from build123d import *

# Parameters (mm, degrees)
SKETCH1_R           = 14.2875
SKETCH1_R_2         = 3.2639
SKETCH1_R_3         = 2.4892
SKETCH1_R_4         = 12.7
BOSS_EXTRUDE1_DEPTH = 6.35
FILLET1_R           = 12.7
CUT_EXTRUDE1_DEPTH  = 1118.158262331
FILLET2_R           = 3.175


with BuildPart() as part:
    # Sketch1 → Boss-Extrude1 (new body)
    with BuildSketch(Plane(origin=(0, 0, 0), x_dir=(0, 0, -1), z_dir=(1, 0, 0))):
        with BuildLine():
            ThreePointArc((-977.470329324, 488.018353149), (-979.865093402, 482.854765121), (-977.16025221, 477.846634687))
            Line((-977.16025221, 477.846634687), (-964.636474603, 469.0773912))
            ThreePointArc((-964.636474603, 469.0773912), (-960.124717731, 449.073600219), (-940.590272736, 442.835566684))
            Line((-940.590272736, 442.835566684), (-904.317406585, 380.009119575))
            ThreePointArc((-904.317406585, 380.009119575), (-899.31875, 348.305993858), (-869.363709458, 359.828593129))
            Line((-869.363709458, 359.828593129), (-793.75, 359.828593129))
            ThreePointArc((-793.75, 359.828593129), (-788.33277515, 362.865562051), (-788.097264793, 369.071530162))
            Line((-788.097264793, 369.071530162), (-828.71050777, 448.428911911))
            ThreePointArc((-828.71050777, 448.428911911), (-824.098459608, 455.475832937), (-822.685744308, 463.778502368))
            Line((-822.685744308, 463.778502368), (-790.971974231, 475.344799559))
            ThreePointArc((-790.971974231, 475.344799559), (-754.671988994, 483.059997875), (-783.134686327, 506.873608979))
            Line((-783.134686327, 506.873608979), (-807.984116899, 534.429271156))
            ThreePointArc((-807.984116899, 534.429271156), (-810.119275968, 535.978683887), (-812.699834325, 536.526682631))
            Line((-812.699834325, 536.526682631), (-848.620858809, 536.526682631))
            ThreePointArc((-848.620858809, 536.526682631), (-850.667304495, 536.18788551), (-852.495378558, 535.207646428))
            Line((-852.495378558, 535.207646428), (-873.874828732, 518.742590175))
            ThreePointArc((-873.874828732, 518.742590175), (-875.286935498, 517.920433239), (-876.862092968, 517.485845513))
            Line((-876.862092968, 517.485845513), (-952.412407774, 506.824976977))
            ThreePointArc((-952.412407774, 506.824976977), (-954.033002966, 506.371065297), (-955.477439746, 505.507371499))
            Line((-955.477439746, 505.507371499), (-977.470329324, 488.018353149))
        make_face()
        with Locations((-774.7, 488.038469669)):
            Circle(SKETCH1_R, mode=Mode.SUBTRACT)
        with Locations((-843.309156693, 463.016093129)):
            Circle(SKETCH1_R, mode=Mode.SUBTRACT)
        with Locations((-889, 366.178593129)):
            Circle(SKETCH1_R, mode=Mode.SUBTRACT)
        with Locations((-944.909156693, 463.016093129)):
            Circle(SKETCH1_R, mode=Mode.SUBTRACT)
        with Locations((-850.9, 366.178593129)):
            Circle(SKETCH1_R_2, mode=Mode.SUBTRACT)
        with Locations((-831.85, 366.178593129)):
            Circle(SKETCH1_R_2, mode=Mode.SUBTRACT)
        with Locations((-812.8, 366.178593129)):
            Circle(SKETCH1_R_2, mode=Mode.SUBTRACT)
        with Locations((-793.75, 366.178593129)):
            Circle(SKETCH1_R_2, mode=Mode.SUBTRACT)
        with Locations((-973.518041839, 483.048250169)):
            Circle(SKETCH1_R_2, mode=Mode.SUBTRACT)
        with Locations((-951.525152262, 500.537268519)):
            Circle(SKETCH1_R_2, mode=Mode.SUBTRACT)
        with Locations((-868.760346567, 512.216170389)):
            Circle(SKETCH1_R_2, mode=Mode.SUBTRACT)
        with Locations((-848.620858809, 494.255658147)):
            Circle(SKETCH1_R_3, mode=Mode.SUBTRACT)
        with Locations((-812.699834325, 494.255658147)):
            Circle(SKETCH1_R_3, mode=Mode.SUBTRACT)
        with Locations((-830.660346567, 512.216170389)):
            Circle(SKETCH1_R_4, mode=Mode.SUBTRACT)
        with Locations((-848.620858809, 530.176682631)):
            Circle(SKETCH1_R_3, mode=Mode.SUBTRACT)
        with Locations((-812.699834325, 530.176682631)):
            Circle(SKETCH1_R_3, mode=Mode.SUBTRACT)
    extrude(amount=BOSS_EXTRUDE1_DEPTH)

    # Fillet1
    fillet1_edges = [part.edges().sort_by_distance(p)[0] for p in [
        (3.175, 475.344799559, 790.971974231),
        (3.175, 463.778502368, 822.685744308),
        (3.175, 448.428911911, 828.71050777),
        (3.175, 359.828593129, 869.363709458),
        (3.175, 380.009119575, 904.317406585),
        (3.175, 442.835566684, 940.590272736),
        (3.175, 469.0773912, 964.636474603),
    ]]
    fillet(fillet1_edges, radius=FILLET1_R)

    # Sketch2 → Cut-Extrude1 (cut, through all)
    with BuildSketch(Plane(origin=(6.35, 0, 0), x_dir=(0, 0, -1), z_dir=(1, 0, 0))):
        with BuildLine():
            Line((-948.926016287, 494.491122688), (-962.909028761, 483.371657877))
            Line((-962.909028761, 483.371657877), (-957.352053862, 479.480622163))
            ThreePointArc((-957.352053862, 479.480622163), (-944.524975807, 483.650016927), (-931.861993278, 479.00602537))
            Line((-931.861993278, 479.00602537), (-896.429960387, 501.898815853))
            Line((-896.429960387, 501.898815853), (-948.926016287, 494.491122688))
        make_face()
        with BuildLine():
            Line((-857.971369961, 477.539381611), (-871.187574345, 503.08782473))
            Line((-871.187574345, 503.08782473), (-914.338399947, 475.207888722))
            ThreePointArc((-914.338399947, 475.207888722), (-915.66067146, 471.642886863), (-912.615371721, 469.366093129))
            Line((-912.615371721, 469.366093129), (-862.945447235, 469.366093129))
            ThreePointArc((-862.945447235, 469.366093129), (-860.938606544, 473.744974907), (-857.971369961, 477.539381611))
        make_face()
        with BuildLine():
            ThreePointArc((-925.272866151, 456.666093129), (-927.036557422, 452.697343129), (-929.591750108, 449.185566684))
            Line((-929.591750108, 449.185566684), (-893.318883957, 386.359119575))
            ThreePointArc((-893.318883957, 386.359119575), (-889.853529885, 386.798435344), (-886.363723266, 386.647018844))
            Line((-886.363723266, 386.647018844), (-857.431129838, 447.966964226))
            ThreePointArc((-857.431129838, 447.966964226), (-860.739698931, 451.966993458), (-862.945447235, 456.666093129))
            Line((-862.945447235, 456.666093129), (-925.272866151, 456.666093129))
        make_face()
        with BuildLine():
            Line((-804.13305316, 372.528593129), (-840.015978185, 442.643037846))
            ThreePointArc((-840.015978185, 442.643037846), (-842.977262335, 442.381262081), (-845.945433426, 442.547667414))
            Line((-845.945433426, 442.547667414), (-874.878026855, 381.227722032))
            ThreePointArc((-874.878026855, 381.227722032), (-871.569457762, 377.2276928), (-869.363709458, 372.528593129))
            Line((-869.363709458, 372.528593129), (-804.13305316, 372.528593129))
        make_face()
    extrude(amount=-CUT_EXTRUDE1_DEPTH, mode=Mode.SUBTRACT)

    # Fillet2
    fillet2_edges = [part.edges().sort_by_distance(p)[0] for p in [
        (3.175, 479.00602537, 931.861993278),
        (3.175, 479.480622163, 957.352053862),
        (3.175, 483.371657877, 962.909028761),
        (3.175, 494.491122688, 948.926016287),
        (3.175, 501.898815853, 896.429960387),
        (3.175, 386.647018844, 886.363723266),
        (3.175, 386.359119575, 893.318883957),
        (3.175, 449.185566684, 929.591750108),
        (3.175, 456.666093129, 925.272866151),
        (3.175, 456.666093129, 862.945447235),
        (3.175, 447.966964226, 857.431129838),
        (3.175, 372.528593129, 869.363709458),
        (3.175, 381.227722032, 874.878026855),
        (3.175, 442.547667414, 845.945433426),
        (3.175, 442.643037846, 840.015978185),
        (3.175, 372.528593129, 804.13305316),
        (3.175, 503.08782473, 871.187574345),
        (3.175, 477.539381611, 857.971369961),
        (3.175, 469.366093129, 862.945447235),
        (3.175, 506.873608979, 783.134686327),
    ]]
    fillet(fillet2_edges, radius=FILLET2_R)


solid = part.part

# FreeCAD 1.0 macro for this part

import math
import FreeCAD as App
import Part
import Sketcher
Q = App.Units.Quantity


def edges_at(feature, points):
    """Names of the edges that pass closest to the given points."""
    edges = feature.Shape.Edges
    near = lambda p: min(range(len(edges)), key=lambda i: edges[i].distToShape(Part.Vertex(*p))[0])
    return sorted({f"Edge{near(p) + 1}" for p in points})

doc = App.newDocument("Part")
body = doc.addObject("PartDesign::Body", "Body")

# Sketch on YZ plane
sketch1 = body.newObject("Sketcher::SketchObject", "Sketch")
sketch1.AttachmentSupport = (doc.getObject("YZ_Plane"), [""])
sketch1.MapMode = "FlatFace"
sketch1.addGeometry([
    Part.ArcOfCircle(Part.Circle(App.Vector(483.04825, 973.518042, 0), App.Vector(0, 0, 1), 6.35), math.radians(38.492155), math.radians(145)),  # 0
    Part.LineSegment(App.Vector(477.846635, 977.160252, 0), App.Vector(469.077391, 964.636475, 0)),  # 1
    Part.ArcOfCircle(Part.Circle(App.Vector(463.016093, 944.909157, 0), App.Vector(0, 0, 1), 20.6375), math.radians(72.920213), math.radians(192.079787)),  # 2
    Part.LineSegment(App.Vector(442.835567, 940.590273, 0), App.Vector(380.00912, 904.317407, 0)),  # 3
    Part.ArcOfCircle(Part.Circle(App.Vector(366.178593, 889, 0), App.Vector(0, 0, 1), 20.6375), math.radians(47.920213), math.radians(252.079787)),  # 4
    Part.LineSegment(App.Vector(359.828593, 869.363709, 0), App.Vector(359.828593, 793.75, 0)),  # 5
    Part.ArcOfCircle(Part.Circle(App.Vector(366.178593, 793.75, 0), App.Vector(0, 0, 1), 6.35), math.radians(180), math.radians(297.1023)),  # 6
    Part.LineSegment(App.Vector(369.07153, 788.097265, 0), App.Vector(448.428912, 828.710508, 0)),  # 7
    Part.ArcOfCircle(Part.Circle(App.Vector(463.016093, 843.309157, 0), App.Vector(0, 0, 1), 20.6375), math.radians(-134.977487), math.radians(-87.882846)),  # 8
    Part.LineSegment(App.Vector(463.778502, 822.685744, 0), App.Vector(475.3448, 790.971974, 0)),  # 9
    Part.ArcOfCircle(Part.Circle(App.Vector(488.03847, 774.7, 0), App.Vector(0, 0, 1), 20.6375), math.radians(127.957581), math.radians(384.123623)),  # 10
    Part.LineSegment(App.Vector(506.873609, 783.134686, 0), App.Vector(534.429271, 807.984117, 0)),  # 11
    Part.ArcOfCircle(Part.Circle(App.Vector(530.176683, 812.699834, 0), App.Vector(0, 0, 1), 6.35), math.radians(-47.956164), math.radians(0)),  # 12
    Part.LineSegment(App.Vector(536.526683, 812.699834, 0), App.Vector(536.526683, 848.620859, 0)),  # 13
    Part.ArcOfCircle(Part.Circle(App.Vector(530.176683, 848.620859, 0), App.Vector(0, 0, 1), 6.35), math.radians(0), math.radians(37.601116)),  # 14
    Part.LineSegment(App.Vector(535.207646, 852.495379, 0), App.Vector(518.74259, 873.874829, 0)),  # 15
    Part.ArcOfCircle(Part.Circle(App.Vector(523.773554, 877.749348, 0), App.Vector(0, 0, 1), 6.35), math.radians(-171.96805), math.radians(-142.398884)),  # 16
    Part.LineSegment(App.Vector(517.485846, 876.862093, 0), App.Vector(506.824977, 952.412408, 0)),  # 17
    Part.ArcOfCircle(Part.Circle(App.Vector(500.537269, 951.525152, 0), App.Vector(0, 0, 1), 6.35), math.radians(8.03195), math.radians(38.492155)),  # 18
    Part.LineSegment(App.Vector(505.507371, 955.47744, 0), App.Vector(488.018353, 977.470329, 0)),  # 19
    Part.Circle(App.Vector(366.178593, 889, 0), App.Vector(0, 0, 1), 14.2875),  # 20
    Part.Circle(App.Vector(366.178593, 850.9, 0), App.Vector(0, 0, 1), 3.2639),  # 21
    Part.Circle(App.Vector(366.178593, 831.85, 0), App.Vector(0, 0, 1), 3.2639),  # 22
    Part.Circle(App.Vector(366.178593, 812.8, 0), App.Vector(0, 0, 1), 3.2639),  # 23
    Part.Circle(App.Vector(366.178593, 793.75, 0), App.Vector(0, 0, 1), 3.2639),  # 24
    Part.Circle(App.Vector(463.016093, 944.909157, 0), App.Vector(0, 0, 1), 14.2875),  # 25
    Part.Circle(App.Vector(483.04825, 973.518042, 0), App.Vector(0, 0, 1), 3.2639),  # 26
    Part.Circle(App.Vector(500.537269, 951.525152, 0), App.Vector(0, 0, 1), 3.2639),  # 27
    Part.Circle(App.Vector(512.21617, 868.760347, 0), App.Vector(0, 0, 1), 3.2639),  # 28
    Part.Circle(App.Vector(463.016093, 843.309157, 0), App.Vector(0, 0, 1), 14.2875),  # 29
    Part.Circle(App.Vector(494.255658, 848.620859, 0), App.Vector(0, 0, 1), 2.4892),  # 30
    Part.Circle(App.Vector(530.176683, 848.620859, 0), App.Vector(0, 0, 1), 2.4892),  # 31
    Part.Circle(App.Vector(512.21617, 830.660347, 0), App.Vector(0, 0, 1), 12.7),  # 32
    Part.Circle(App.Vector(494.255658, 812.699834, 0), App.Vector(0, 0, 1), 2.4892),  # 33
    Part.Circle(App.Vector(488.03847, 774.7, 0), App.Vector(0, 0, 1), 14.2875),  # 34
    Part.Circle(App.Vector(530.176683, 812.699834, 0), App.Vector(0, 0, 1), 2.4892),  # 35
], False)
sketch1.addConstraint([
    Sketcher.Constraint("Tangent", 0, 2, 1, 1),
    Sketcher.Constraint("Coincident", 1, 2, 2, 1),
    Sketcher.Constraint("Coincident", 2, 2, 3, 1),
    Sketcher.Constraint("Coincident", 3, 2, 4, 1),
    Sketcher.Constraint("Coincident", 4, 2, 5, 1),
    Sketcher.Constraint("Tangent", 5, 2, 6, 1),
    Sketcher.Constraint("Tangent", 6, 2, 7, 1),
    Sketcher.Constraint("Coincident", 7, 2, 8, 1),
    Sketcher.Constraint("Coincident", 8, 2, 9, 1),
    Sketcher.Constraint("Coincident", 9, 2, 10, 1),
    Sketcher.Constraint("Coincident", 10, 2, 11, 1),
    Sketcher.Constraint("Tangent", 11, 2, 12, 1),
    Sketcher.Constraint("Tangent", 12, 2, 13, 1),
    Sketcher.Constraint("Tangent", 13, 2, 14, 1),
    Sketcher.Constraint("Tangent", 14, 2, 15, 1),
    Sketcher.Constraint("Tangent", 15, 2, 16, 2),
    Sketcher.Constraint("Tangent", 16, 1, 17, 1),
    Sketcher.Constraint("Tangent", 17, 2, 18, 1),
    Sketcher.Constraint("Tangent", 18, 2, 19, 1),
    Sketcher.Constraint("Tangent", 19, 2, 0, 1),
    Sketcher.Constraint("Vertical", 5),
    Sketcher.Constraint("Vertical", 13),
    Sketcher.Constraint("Coincident", 20, 3, 4, 3),
    Sketcher.Constraint("Coincident", 24, 3, 6, 3),
    Sketcher.Constraint("Coincident", 25, 3, 2, 3),
    Sketcher.Constraint("Coincident", 26, 3, 0, 3),
    Sketcher.Constraint("Coincident", 27, 3, 18, 3),
    Sketcher.Constraint("Coincident", 29, 3, 8, 3),
    Sketcher.Constraint("Coincident", 31, 3, 14, 3),
    Sketcher.Constraint("Coincident", 34, 3, 10, 3),
    Sketcher.Constraint("Coincident", 35, 3, 12, 3),
    Sketcher.Constraint("Equal", 2, 4),
    Sketcher.Constraint("Equal", 0, 6),
    Sketcher.Constraint("Equal", 4, 8),
    Sketcher.Constraint("Equal", 8, 10),
    Sketcher.Constraint("Equal", 6, 12),
    Sketcher.Constraint("Equal", 12, 14),
    Sketcher.Constraint("Equal", 14, 16),
    Sketcher.Constraint("Equal", 16, 18),
    Sketcher.Constraint("Equal", 21, 22),
    Sketcher.Constraint("Equal", 22, 23),
    Sketcher.Constraint("Equal", 23, 24),
    Sketcher.Constraint("Equal", 20, 25),
    Sketcher.Constraint("Equal", 24, 26),
    Sketcher.Constraint("Equal", 26, 27),
    Sketcher.Constraint("Equal", 27, 28),
    Sketcher.Constraint("Equal", 25, 29),
    Sketcher.Constraint("Equal", 30, 31),
    Sketcher.Constraint("Equal", 31, 33),
    Sketcher.Constraint("Equal", 29, 34),
    Sketcher.Constraint("Equal", 33, 35),
    Sketcher.Constraint("Horizontal", 14, 3, 30, 3),
    Sketcher.Constraint("Horizontal", 12, 3, 33, 3),
    Sketcher.Constraint("Vertical", 4, 3, 6, 3),
    Sketcher.Constraint("Vertical", 2, 3, 8, 3),
    Sketcher.Constraint("Vertical", 20, 3, 21, 3),
    Sketcher.Constraint("Vertical", 21, 3, 22, 3),
    Sketcher.Constraint("Vertical", 22, 3, 23, 3),
    Sketcher.Constraint("Vertical", 28, 3, 32, 3),
    Sketcher.Constraint("Vertical", 30, 3, 33, 3),
    Sketcher.Constraint("Diameter", 32, Q("1 in")),
    Sketcher.Constraint("Radius", 0, Q("0.25 in")),
    Sketcher.Constraint("Diameter", 20, Q("1.125 in")),
    Sketcher.Constraint("Diameter", 21, Q("0.257 in")),
    Sketcher.Constraint("Diameter", 30, Q("0.196 in")),
    Sketcher.Constraint("DistanceY", -1, 1, 4, 3, Q("35 in")),
    Sketcher.Constraint("DistanceY", -1, 1, 23, 3, Q("32 in")),
    Sketcher.Constraint("Angle", 1, Q("-125 deg")),
    Sketcher.Constraint("Angle", 3, Q("-150 deg")),
    Sketcher.Constraint("Radius", 2, Q("0.8125 in")),
    Sketcher.Constraint("DistanceY", 8, 3, 2, 3, Q("4 in")),
    Sketcher.Constraint("DistanceY", -1, 1, 10, 3, Q("30.5 in")),
    Sketcher.Constraint("DistanceY", -1, 1, 21, 3, Q("33.5 in")),
    Sketcher.Constraint("DistanceY", 6, 3, 22, 3, Q("1.5 in")),
    Sketcher.Constraint("DistanceY", 32, 3, 28, 3, Q("1.5 in")),
    Sketcher.Constraint("DistanceY", -1, 1, 6, 3, Q("31.25 in")),
    Sketcher.Constraint("DistanceX", 4, 3, 2, 3, Q("3.8125 in")),
    Sketcher.Constraint("DistanceX", -1, 1, 9, 2, Q("475.3448 mm")),
    Sketcher.Constraint("DistanceY", 28, 3, 16, 3, Q("8.989002 mm")),
    Sketcher.Constraint("DistanceX", 27, 3, 28, 3, Q("11.678902 mm")),
    Sketcher.Constraint("DistanceX", 34, 3, 32, 3, Q("24.177701 mm")),
    Sketcher.Constraint("DistanceY", 27, 3, 0, 2, Q("25.6351 mm")),
    Sketcher.Constraint("DistanceX", 2, 3, 1, 2, Q("6.061298 mm")),
    Sketcher.Constraint("DistanceY", 2, 2, 1, 2, Q("24.046202 mm")),
    Sketcher.Constraint("DistanceX", 32, 3, 11, 2, Q("22.213101 mm")),
    Sketcher.Constraint("DistanceX", 16, 1, 14, 2, Q("17.721801 mm")),
    Sketcher.Constraint("Distance", 1, Q("15.288709 mm")),
    Sketcher.Constraint("Distance", 9, Q("33.75711 mm")),
    Sketcher.Constraint("Distance", 15, Q("26.984791 mm")),
    Sketcher.Constraint("DistanceY", 13, 1, 13, 2, Q("35.921024 mm")),
    Sketcher.Constraint("DistanceX", -1, 1, 0, 3, Q("483.04825 mm")),
    Sketcher.Constraint("DistanceY", -1, 1, 0, 3, Q("973.518042 mm")),
    Sketcher.Constraint("DistanceX", -1, 1, 10, 3, Q("488.03847 mm")),
    Sketcher.Constraint("DistanceY", -1, 1, 14, 3, Q("848.620859 mm")),
    Sketcher.Constraint("DistanceX", -1, 1, 30, 3, Q("494.255658 mm")),
    Sketcher.Constraint("DistanceX", -1, 1, 6, 2, Q("369.07153 mm")),
    Sketcher.Constraint("DistanceX", -1, 1, 10, 2, Q("506.873609 mm")),
])
pad1 = body.newObject("PartDesign::Pad", "Pad")
pad1.Profile = sketch1
pad1.Length = Q("0.25 in")
doc.recompute()

fillet = body.newObject("PartDesign::Fillet", "Fillet")
fillet.Base = (pad1, edges_at(pad1, [
    (3.175, 475.345, 790.972),
    (3.175, 463.779, 822.686),
    (3.175, 448.429, 828.711),
    (3.175, 359.829, 869.364),
    (3.175, 380.009, 904.317),
    (3.175, 442.836, 940.59),
    (3.175, 469.077, 964.636),
]))
fillet.Radius = Q("0.5 in")

# Sketch on YZ plane
sketch2 = body.newObject("Sketcher::SketchObject", "Sketch001")
sketch2.AttachmentSupport = (doc.getObject("YZ_Plane"), [""])
sketch2.MapMode = "FlatFace"
sketch2.AttachmentOffset = App.Placement(App.Vector(0, 0, 0.25 * 25.4), App.Rotation())
sketch2.addGeometry([
    Part.LineSegment(App.Vector(494.491123, 948.926016, 0), App.Vector(483.371658, 962.909029, 0)),  # 0
    Part.LineSegment(App.Vector(483.371658, 962.909029, 0), App.Vector(479.480622, 957.352054, 0)),  # 1
    Part.ArcOfCircle(Part.Circle(App.Vector(463.016093, 944.909157, 0), App.Vector(0, 0, 1), 20.6375), math.radians(-39.213109), math.radians(37.079787)),  # 2
    Part.LineSegment(App.Vector(479.006025, 931.861993, 0), App.Vector(501.898816, 896.42996, 0)),  # 3
    Part.LineSegment(App.Vector(501.898816, 896.42996, 0), App.Vector(494.491123, 948.926016, 0)),  # 4
    Part.LineSegment(App.Vector(477.539382, 857.97137, 0), App.Vector(503.087825, 871.187574, 0)),  # 5
    Part.LineSegment(App.Vector(503.087825, 871.187574, 0), App.Vector(475.207889, 914.3384, 0)),  # 6
    Part.ArcOfCircle(Part.Circle(App.Vector(472.541093, 912.615372, 0), App.Vector(0, 0, 1), 3.175), math.radians(32.866678), math.radians(180)),  # 7
    Part.LineSegment(App.Vector(469.366093, 912.615372, 0), App.Vector(469.366093, 862.945447, 0)),  # 8
    Part.ArcOfCircle(Part.Circle(App.Vector(463.016093, 843.309157, 0), App.Vector(0, 0, 1), 20.6375), math.radians(45.272729), math.radians(72.079787)),  # 9
    Part.ArcOfCircle(Part.Circle(App.Vector(463.016093, 944.909157, 0), App.Vector(0, 0, 1), 20.6375), math.radians(-132.079787), math.radians(-107.920213)),  # 10
    Part.LineSegment(App.Vector(449.185567, 929.59175, 0), App.Vector(386.35912, 893.318884, 0)),  # 11
    Part.ArcOfCircle(Part.Circle(App.Vector(366.178593, 889, 0), App.Vector(0, 0, 1), 20.6375), math.radians(-7.339134), math.radians(12.079787)),  # 12
    Part.LineSegment(App.Vector(386.647019, 886.363723, 0), App.Vector(447.966964, 857.43113, 0)),  # 13
    Part.ArcOfCircle(Part.Circle(App.Vector(463.016093, 843.309157, 0), App.Vector(0, 0, 1), 20.6375), math.radians(107.920213), math.radians(136.82044)),  # 14
    Part.LineSegment(App.Vector(456.666093, 862.945447, 0), App.Vector(456.666093, 925.272866, 0)),  # 15
    Part.LineSegment(App.Vector(372.528593, 804.133053, 0), App.Vector(442.643038, 840.015978, 0)),  # 16
    Part.ArcOfCircle(Part.Circle(App.Vector(463.016093, 843.309157, 0), App.Vector(0, 0, 1), 20.6375), math.radians(172.660866), math.radians(189.182086)),  # 17
    Part.LineSegment(App.Vector(442.547667, 845.945433, 0), App.Vector(381.227722, 874.878027, 0)),  # 18
    Part.ArcOfCircle(Part.Circle(App.Vector(366.178593, 889, 0), App.Vector(0, 0, 1), 20.6375), math.radians(-72.079787), math.radians(-43.17956)),  # 19
    Part.LineSegment(App.Vector(372.528593, 869.363709, 0), App.Vector(372.528593, 804.133053, 0)),  # 20
], False)
sketch2.addConstraint([
    Sketcher.Constraint("Coincident", 0, 2, 1, 1),
    Sketcher.Constraint("Coincident", 1, 2, 2, 2),
    Sketcher.Constraint("Coincident", 2, 1, 3, 1),
    Sketcher.Constraint("Coincident", 3, 2, 4, 1),
    Sketcher.Constraint("Coincident", 4, 2, 0, 1),
    Sketcher.Constraint("Coincident", 5, 2, 6, 1),
    Sketcher.Constraint("Tangent", 6, 2, 7, 1),
    Sketcher.Constraint("Tangent", 7, 2, 8, 1),
    Sketcher.Constraint("Coincident", 8, 2, 9, 2),
    Sketcher.Constraint("Coincident", 9, 1, 5, 1),
    Sketcher.Constraint("Coincident", 10, 1, 11, 1),
    Sketcher.Constraint("Coincident", 11, 2, 12, 2),
    Sketcher.Constraint("Coincident", 12, 1, 13, 1),
    Sketcher.Constraint("Coincident", 13, 2, 14, 2),
    Sketcher.Constraint("Coincident", 14, 1, 15, 1),
    Sketcher.Constraint("Coincident", 15, 2, 10, 2),
    Sketcher.Constraint("Coincident", 16, 2, 17, 2),
    Sketcher.Constraint("Coincident", 17, 1, 18, 1),
    Sketcher.Constraint("Coincident", 18, 2, 19, 2),
    Sketcher.Constraint("Coincident", 19, 1, 20, 1),
    Sketcher.Constraint("Coincident", 20, 2, 16, 1),
    Sketcher.Constraint("Vertical", 8),
    Sketcher.Constraint("Vertical", 15),
    Sketcher.Constraint("Vertical", 20),
    Sketcher.Constraint("Coincident", 10, 3, 2, 3),
    Sketcher.Constraint("Coincident", 14, 3, 9, 3),
    Sketcher.Constraint("Coincident", 17, 3, 9, 3),
    Sketcher.Constraint("Coincident", 19, 3, 12, 3),
    Sketcher.Constraint("Equal", 2, 9),
    Sketcher.Constraint("Equal", 9, 10),
    Sketcher.Constraint("Equal", 10, 12),
    Sketcher.Constraint("Equal", 12, 14),
    Sketcher.Constraint("Equal", 14, 17),
    Sketcher.Constraint("Equal", 17, 19),
    Sketcher.Constraint("Parallel", 3, 6),
    Sketcher.Constraint("Parallel", 13, 18),
    Sketcher.Constraint("Horizontal", 8, 2, 14, 1),
    Sketcher.Constraint("Vertical", 2, 3, 9, 3),
    Sketcher.Constraint("Equal", 13, 18),
    Sketcher.Constraint("DistanceY", -1, 1, 12, 3, Q("35 in")),
    Sketcher.Constraint("Angle", 1, Q("-125 deg")),
    Sketcher.Constraint("Angle", 11, Q("-150 deg")),
    Sketcher.Constraint("Radius", 2, Q("0.8125 in")),
    Sketcher.Constraint("Radius", 7, Q("0.125 in")),
    Sketcher.Constraint("DistanceY", 9, 3, 2, 3, Q("4 in")),
    Sketcher.Constraint("DistanceX", 14, 1, 8, 2, Q("0.5 in")),
    Sketcher.Constraint("DistanceX", 19, 3, 19, 1, Q("0.25 in")),
    Sketcher.Constraint("DistanceX", 12, 3, 9, 3, Q("3.8125 in")),
    Sketcher.Constraint("DistanceX", 2, 3, 0, 2, Q("0.8014002 in")),
    Sketcher.Constraint("DistanceY", -1, 1, 6, 2, Q("914.3384 mm")),
    Sketcher.Constraint("DistanceX", 1, 2, 4, 2, Q("15.010501 mm")),
    Sketcher.Constraint("DistanceX", 11, 2, 12, 1, Q("0.287899 mm")),
    Sketcher.Constraint("Distance", 0, Q("17.865249 mm")),
    Sketcher.Constraint("Distance", 13, Q("67.802881 mm")),
    Sketcher.Constraint("Distance", 16, Q("78.76306 mm")),
    Sketcher.Constraint("DistanceY", 8, 2, 8, 1, Q("49.669924 mm")),
    Sketcher.Constraint("DistanceY", 20, 2, 20, 1, Q("65.230656 mm")),
    Sketcher.Constraint("DistanceY", -1, 1, 7, 3, Q("912.615372 mm")),
    Sketcher.Constraint("DistanceY", -1, 1, 0, 2, Q("962.909029 mm")),
    Sketcher.Constraint("DistanceY", -1, 1, 3, 2, Q("896.42996 mm")),
    Sketcher.Constraint("DistanceX", -1, 1, 6, 2, Q("475.207889 mm")),
    Sketcher.Constraint("DistanceX", -1, 1, 9, 1, Q("477.539382 mm")),
    Sketcher.Constraint("DistanceY", -1, 1, 10, 1, Q("929.59175 mm")),
    Sketcher.Constraint("DistanceY", 7, 3, 2, 1, Q("19.246622 mm")),
    Sketcher.Constraint("DistanceX", 3, 2, 5, 2, Q("1.189009 mm")),
])
pocket1 = body.newObject("PartDesign::Pocket", "Pocket")
pocket1.Profile = sketch2
pocket1.Type = "ThroughAll"
doc.recompute()

fillet2 = body.newObject("PartDesign::Fillet", "Fillet001")
fillet2.Base = (pocket1, edges_at(pocket1, [
    (3.175, 479.006, 931.862),
    (3.175, 479.481, 957.352),
    (3.175, 483.372, 962.909),
    (3.175, 494.491, 948.926),
    (3.175, 501.899, 896.43),
    (3.175, 386.647, 886.364),
    (3.175, 386.359, 893.319),
    (3.175, 449.186, 929.592),
    (3.175, 456.666, 925.273),
    (3.175, 456.666, 862.945),
    (3.175, 447.967, 857.431),
    (3.175, 372.529, 869.364),
    (3.175, 381.228, 874.878),
    (3.175, 442.548, 845.945),
    (3.175, 442.643, 840.016),
    (3.175, 372.529, 804.133),
    (3.175, 503.088, 871.188),
    (3.175, 477.539, 857.971),
    (3.175, 469.366, 862.945),
    (3.175, 506.874, 783.135),
]))
fillet2.Radius = Q("0.125 in")

doc.recompute()
